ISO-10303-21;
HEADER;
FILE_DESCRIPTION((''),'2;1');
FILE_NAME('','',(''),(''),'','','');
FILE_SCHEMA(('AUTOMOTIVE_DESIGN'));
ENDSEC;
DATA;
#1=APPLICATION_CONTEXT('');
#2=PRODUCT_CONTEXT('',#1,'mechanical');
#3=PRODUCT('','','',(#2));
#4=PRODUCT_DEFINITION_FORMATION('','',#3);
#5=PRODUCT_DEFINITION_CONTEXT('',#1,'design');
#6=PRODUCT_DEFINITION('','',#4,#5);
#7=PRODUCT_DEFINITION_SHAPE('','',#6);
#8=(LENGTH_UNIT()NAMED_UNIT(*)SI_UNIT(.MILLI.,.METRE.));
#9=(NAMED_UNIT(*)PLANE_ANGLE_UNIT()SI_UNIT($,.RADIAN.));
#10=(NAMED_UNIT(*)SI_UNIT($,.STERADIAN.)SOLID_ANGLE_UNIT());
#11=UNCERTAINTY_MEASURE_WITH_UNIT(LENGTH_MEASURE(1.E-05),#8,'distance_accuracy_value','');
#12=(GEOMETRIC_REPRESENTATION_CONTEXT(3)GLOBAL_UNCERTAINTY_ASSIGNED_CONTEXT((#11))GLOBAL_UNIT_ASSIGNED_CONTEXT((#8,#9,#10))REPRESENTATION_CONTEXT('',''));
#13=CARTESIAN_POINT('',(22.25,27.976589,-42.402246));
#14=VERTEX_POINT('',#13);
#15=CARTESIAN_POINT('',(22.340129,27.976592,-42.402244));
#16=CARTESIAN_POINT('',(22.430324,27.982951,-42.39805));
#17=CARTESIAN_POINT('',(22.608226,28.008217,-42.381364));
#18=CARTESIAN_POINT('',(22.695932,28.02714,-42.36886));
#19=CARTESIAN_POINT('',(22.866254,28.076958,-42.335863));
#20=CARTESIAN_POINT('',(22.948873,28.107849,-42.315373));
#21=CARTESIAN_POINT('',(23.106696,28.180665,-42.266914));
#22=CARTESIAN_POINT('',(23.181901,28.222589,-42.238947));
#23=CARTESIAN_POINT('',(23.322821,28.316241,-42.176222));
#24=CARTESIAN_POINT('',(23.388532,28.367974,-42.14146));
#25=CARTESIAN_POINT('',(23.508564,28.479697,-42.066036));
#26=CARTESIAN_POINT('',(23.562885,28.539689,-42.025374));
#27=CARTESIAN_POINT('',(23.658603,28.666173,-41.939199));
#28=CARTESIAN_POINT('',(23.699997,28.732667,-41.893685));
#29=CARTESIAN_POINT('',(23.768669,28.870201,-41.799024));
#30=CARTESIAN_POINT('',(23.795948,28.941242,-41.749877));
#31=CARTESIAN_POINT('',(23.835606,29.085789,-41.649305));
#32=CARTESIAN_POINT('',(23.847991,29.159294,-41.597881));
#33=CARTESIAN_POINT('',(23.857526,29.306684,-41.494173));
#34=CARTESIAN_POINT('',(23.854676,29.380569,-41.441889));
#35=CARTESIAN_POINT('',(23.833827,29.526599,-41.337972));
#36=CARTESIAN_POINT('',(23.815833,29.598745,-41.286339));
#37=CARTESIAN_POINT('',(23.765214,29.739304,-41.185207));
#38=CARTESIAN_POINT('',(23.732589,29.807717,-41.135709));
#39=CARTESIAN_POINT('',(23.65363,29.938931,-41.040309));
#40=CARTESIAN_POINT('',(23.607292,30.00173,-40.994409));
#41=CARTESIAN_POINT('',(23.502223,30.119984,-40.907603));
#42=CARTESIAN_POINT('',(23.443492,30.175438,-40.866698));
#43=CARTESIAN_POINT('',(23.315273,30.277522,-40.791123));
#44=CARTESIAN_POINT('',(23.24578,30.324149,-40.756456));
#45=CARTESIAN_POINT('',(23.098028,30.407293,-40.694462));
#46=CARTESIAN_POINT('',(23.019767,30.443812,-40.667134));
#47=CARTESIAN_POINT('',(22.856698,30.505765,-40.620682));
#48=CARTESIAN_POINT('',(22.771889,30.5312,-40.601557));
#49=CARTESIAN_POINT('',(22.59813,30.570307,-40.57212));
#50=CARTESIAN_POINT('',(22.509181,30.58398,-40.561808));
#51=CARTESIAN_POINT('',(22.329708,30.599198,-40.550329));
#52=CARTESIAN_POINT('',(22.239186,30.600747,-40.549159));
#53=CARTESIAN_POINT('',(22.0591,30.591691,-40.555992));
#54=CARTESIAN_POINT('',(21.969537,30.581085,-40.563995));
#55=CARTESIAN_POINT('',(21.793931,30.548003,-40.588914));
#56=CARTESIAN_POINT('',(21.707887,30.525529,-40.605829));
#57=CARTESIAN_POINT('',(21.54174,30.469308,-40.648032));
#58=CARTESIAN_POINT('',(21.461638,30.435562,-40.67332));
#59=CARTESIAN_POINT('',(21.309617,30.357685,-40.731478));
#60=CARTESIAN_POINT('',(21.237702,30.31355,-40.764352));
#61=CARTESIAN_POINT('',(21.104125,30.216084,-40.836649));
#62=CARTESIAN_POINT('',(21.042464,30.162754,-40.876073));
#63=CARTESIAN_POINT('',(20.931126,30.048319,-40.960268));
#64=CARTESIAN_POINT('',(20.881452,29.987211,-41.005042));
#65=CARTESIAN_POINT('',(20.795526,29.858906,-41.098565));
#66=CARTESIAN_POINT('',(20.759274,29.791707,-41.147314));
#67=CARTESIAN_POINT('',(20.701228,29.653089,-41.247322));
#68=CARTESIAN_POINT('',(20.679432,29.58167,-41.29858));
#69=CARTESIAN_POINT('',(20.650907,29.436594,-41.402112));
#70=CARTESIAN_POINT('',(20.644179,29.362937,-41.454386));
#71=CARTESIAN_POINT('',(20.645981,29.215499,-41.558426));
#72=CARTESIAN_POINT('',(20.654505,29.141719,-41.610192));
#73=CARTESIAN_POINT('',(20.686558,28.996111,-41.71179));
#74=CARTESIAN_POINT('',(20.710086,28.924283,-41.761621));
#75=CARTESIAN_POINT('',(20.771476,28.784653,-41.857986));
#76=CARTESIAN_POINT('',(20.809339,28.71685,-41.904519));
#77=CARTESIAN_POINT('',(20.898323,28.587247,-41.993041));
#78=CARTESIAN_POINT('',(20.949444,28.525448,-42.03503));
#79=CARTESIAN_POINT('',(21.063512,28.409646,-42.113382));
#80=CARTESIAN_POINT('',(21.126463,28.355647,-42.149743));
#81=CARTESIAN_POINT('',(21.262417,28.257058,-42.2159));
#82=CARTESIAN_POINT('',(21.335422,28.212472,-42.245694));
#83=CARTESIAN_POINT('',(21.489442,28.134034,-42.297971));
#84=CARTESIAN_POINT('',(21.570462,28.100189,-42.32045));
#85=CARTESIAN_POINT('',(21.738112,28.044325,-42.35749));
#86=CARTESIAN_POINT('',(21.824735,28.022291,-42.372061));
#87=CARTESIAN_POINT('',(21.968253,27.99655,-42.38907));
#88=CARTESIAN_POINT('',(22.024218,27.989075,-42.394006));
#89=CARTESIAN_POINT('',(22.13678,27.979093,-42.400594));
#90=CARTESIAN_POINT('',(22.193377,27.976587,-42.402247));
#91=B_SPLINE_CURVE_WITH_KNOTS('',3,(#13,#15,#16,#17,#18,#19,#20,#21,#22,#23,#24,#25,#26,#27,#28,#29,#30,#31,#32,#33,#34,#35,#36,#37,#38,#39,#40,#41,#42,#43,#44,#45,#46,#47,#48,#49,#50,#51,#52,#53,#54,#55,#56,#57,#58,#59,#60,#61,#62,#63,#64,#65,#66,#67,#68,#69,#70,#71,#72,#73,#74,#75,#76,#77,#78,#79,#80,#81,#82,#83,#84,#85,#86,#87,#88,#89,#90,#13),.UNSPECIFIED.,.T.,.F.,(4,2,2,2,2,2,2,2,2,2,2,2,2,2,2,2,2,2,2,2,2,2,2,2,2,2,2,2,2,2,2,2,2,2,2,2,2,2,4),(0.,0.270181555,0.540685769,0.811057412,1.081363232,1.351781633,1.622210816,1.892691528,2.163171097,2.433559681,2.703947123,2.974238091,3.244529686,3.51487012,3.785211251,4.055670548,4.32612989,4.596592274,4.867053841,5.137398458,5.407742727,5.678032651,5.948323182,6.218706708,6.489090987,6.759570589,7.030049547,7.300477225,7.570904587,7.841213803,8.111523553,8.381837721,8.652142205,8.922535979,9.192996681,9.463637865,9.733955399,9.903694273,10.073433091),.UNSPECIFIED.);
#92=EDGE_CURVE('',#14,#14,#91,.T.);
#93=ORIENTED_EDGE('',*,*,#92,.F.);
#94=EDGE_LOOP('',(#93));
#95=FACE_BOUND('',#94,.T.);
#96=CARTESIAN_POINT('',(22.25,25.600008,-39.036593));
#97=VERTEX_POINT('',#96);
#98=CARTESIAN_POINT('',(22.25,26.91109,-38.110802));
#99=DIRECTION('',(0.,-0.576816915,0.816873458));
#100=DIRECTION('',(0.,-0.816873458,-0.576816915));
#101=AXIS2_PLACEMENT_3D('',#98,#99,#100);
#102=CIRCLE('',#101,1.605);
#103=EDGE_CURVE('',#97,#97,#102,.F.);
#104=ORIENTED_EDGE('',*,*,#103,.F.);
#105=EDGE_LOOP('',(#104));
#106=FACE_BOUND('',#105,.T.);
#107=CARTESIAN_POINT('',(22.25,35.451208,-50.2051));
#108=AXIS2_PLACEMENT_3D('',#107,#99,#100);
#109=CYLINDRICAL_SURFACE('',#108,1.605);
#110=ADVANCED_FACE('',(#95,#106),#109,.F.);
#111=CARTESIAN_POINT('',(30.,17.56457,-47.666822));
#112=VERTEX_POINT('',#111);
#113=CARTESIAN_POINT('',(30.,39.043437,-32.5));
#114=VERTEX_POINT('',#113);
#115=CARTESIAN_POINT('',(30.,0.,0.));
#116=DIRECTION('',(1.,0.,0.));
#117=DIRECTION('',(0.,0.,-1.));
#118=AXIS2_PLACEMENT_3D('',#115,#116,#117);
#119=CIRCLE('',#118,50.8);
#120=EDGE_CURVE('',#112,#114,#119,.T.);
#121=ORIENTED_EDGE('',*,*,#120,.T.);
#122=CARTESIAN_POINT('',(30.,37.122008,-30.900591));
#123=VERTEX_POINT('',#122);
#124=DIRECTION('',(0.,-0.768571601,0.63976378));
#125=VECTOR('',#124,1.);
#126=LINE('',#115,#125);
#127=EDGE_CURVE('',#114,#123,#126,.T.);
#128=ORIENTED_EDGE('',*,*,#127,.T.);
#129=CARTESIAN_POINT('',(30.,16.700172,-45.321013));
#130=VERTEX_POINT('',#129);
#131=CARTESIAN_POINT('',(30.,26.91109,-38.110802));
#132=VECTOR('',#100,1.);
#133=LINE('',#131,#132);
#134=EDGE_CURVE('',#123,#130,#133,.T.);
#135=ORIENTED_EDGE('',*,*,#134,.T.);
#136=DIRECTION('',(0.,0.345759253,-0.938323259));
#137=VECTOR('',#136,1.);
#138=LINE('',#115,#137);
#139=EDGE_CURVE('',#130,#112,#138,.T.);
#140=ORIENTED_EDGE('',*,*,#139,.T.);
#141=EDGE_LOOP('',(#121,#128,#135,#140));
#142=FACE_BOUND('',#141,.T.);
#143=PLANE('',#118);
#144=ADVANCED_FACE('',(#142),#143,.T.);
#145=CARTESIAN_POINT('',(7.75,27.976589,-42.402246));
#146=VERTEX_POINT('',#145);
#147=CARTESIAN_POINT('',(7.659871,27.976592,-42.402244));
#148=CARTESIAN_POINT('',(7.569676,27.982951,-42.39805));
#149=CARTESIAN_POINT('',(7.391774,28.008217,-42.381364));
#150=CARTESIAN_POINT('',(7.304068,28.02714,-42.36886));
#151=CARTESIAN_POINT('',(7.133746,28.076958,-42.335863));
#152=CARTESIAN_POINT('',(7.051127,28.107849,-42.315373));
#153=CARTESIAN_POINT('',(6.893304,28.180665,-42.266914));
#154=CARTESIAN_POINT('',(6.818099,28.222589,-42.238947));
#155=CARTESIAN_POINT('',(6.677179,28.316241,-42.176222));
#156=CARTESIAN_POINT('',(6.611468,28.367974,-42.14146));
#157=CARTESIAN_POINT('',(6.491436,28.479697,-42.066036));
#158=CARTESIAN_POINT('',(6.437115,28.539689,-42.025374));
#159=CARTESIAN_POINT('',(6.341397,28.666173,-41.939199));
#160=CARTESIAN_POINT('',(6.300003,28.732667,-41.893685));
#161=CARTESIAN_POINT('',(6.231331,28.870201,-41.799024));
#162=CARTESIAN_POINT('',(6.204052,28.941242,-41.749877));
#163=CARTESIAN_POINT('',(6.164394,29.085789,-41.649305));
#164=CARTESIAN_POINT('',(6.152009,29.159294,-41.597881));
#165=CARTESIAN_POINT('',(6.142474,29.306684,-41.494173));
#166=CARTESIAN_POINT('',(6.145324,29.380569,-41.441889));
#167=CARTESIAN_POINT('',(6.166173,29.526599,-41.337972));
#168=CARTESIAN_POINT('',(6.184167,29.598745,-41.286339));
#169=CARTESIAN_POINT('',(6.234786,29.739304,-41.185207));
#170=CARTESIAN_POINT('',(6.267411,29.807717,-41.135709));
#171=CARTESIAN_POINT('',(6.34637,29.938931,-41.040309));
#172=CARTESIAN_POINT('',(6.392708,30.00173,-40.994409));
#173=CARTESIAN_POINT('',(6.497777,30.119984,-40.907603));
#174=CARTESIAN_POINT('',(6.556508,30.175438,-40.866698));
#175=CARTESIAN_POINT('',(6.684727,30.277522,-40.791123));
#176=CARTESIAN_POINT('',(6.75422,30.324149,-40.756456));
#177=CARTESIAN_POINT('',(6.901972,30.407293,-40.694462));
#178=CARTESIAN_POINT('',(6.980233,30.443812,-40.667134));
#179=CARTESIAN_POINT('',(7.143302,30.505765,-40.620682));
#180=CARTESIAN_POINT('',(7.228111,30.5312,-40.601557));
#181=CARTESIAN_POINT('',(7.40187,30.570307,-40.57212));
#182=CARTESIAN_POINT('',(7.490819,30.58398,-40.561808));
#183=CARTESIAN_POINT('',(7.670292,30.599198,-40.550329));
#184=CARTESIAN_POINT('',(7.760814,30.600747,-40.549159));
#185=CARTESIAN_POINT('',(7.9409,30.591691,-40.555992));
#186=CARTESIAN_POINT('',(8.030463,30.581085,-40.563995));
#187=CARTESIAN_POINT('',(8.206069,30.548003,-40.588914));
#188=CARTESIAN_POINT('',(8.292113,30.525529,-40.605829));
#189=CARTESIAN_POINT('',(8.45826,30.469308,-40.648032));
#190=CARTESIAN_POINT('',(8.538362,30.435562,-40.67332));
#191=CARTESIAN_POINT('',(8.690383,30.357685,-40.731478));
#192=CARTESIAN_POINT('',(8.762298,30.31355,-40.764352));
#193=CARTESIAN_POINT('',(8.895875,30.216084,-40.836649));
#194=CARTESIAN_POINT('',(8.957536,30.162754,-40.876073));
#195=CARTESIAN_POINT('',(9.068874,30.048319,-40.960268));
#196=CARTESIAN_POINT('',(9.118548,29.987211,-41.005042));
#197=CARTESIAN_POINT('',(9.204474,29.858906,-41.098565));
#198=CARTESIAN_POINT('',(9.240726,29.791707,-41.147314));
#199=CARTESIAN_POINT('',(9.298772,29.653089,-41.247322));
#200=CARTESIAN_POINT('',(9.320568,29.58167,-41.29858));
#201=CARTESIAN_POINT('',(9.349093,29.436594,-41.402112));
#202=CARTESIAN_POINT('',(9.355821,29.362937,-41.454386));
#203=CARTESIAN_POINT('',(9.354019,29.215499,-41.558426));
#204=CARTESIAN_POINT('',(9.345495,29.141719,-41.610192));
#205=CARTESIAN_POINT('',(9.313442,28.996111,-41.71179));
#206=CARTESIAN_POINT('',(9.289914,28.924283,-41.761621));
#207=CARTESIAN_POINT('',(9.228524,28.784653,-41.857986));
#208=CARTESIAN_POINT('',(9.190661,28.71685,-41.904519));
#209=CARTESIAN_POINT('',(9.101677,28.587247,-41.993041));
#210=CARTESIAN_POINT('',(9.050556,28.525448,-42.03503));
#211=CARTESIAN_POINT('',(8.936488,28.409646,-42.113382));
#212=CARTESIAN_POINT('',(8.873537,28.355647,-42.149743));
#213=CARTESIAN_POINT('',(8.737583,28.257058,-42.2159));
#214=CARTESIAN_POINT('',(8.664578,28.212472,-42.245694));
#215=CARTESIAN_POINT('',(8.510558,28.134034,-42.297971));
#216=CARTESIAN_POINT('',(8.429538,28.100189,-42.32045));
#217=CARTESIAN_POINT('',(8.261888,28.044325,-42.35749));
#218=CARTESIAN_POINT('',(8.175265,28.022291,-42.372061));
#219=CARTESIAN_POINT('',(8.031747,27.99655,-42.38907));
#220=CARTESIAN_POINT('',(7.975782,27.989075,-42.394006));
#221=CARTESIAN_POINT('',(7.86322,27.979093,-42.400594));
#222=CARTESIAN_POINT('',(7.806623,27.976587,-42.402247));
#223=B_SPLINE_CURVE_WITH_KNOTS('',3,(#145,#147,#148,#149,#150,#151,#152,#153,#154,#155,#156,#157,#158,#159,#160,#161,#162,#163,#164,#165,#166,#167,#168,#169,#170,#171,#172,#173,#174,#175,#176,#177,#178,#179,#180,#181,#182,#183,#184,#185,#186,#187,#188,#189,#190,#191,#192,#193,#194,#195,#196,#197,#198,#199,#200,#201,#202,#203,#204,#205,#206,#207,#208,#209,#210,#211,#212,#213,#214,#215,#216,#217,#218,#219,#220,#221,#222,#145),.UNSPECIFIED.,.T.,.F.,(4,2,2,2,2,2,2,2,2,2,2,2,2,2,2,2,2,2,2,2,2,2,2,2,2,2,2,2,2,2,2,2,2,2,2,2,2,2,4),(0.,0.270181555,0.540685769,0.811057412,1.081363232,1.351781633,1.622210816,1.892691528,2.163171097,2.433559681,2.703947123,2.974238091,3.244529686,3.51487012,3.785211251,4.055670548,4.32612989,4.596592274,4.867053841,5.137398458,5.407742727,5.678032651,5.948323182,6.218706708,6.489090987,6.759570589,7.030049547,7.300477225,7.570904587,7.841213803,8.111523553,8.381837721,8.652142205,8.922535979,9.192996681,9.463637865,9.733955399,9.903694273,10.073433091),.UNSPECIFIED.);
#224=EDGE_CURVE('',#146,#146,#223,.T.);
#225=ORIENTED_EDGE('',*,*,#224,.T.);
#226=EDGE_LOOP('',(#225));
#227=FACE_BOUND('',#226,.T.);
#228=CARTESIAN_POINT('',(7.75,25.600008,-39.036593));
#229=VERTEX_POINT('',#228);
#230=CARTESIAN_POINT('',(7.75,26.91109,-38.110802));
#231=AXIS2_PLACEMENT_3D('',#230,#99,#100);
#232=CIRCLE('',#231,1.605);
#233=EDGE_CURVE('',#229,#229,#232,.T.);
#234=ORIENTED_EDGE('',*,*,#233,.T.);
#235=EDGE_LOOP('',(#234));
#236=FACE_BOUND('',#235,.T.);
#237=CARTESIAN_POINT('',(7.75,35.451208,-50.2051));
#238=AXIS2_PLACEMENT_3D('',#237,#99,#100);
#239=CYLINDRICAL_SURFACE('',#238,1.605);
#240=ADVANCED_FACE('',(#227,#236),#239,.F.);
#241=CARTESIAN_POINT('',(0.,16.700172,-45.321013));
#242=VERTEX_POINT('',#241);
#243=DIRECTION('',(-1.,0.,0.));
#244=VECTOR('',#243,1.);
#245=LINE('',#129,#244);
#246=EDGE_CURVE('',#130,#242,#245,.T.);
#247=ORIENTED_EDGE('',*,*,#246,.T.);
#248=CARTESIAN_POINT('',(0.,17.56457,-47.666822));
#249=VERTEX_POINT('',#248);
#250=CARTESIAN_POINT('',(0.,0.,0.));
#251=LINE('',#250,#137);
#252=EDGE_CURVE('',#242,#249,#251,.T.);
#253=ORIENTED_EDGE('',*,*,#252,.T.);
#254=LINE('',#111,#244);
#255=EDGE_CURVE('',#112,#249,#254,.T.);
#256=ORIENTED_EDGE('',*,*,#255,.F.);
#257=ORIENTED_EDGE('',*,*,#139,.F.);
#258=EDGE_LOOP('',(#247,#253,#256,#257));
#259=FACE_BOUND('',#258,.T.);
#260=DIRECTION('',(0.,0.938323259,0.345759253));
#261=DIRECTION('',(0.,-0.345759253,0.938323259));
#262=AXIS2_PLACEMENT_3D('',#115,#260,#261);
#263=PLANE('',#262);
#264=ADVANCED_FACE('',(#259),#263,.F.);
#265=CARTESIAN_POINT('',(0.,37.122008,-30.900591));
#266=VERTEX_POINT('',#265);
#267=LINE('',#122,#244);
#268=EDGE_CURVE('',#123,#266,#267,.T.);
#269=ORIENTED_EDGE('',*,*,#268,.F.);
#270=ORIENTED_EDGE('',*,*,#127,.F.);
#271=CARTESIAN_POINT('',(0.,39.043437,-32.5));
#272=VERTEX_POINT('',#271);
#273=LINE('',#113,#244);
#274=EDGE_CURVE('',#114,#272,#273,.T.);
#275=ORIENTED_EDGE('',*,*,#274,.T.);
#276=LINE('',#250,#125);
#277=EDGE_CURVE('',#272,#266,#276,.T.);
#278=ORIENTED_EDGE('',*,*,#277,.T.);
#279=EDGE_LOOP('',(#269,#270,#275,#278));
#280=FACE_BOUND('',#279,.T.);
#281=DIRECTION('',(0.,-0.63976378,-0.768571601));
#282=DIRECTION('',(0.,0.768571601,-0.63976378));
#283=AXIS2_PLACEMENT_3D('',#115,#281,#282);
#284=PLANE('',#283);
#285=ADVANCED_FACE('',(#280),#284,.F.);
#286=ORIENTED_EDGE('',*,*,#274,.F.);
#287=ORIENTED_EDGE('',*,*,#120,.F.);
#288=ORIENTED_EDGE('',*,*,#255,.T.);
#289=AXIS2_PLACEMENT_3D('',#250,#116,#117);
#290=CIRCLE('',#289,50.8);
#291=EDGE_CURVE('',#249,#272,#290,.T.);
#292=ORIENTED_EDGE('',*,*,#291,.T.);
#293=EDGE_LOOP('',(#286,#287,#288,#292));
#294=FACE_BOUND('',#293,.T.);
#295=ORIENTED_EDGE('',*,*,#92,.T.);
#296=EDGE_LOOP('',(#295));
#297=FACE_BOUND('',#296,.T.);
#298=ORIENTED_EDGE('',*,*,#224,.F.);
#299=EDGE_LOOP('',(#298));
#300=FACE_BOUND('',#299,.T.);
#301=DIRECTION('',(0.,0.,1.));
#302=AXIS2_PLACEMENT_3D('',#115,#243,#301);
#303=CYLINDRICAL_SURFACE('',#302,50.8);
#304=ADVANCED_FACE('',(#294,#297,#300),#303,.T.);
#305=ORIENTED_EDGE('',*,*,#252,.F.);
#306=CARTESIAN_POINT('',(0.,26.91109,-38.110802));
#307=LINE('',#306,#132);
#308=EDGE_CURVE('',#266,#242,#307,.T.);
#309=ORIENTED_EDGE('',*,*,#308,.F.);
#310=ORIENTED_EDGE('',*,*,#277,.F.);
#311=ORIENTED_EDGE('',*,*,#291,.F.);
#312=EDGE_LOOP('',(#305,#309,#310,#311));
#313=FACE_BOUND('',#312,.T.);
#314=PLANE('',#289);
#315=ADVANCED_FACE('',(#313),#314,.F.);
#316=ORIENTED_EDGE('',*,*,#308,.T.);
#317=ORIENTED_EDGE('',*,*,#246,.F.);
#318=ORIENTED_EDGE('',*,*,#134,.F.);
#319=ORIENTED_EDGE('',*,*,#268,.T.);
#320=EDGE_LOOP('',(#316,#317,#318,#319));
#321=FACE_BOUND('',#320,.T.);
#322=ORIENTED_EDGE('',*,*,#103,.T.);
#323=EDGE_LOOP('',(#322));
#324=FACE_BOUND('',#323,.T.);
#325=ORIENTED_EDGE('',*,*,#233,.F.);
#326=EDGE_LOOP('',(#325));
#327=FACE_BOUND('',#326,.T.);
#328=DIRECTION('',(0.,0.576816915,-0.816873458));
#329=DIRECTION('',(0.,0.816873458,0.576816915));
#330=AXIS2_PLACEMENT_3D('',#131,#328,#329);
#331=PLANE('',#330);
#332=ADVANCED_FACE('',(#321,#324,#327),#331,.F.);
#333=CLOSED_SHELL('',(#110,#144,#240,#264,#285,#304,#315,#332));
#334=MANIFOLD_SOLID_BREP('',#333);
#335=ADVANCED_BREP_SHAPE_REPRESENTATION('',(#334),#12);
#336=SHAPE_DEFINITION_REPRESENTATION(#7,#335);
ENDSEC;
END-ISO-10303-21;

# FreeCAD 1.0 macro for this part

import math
import FreeCAD as App
import Part
import Sketcher
from FreeCAD import Vector

doc = App.newDocument("Part")
body = doc.addObject("PartDesign::Body", "Body")

# Sketch on YZ plane
sketch1 = body.newObject("Sketcher::SketchObject", "Sketch")
sketch1.AttachmentSupport = (doc.getObject("YZ_Plane"), [""])
sketch1.MapMode = "FlatFace"
sketch1.addGeometry(Part.ArcOfCircle(Part.Circle(Vector(0, 0, 0), Vector(0, 0, 1), 50.8), math.radians(-70), math.radians(-40)), False)
sketch1.addGeometry(Part.LineSegment(Vector(39, -32.5, 0), Vector(37.1, -30.9, 0)), False)
sketch1.addGeometry(Part.LineSegment(Vector(37.1, -30.9, 0), Vector(16.7, -45.3, 0)), False)
sketch1.addGeometry(Part.LineSegment(Vector(16.7, -45.3, 0), Vector(17.6, -47.7, 0)), False)
sketch1.addConstraint(Sketcher.Constraint("Coincident", 0, 2, 1, 1))
sketch1.addConstraint(Sketcher.Constraint("Coincident", 1, 2, 2, 1))
sketch1.addConstraint(Sketcher.Constraint("Coincident", 2, 2, 3, 1))
sketch1.addConstraint(Sketcher.Constraint("Coincident", 3, 2, 0, 1))
sketch1.addConstraint(Sketcher.Constraint("Coincident", 0, 3, -1, 1))
sketch1.addConstraint(Sketcher.Constraint("Equal", 1, 3))
sketch1.addConstraint(Sketcher.Constraint("Radius", 0, 50.8))
sketch1.addConstraint(Sketcher.Constraint("Distance", 2, 25.0))
sketch1.addConstraint(Sketcher.Constraint("Distance", 1, 2.5))
sketch1.addConstraint(Sketcher.Constraint("DistanceY", 0, 2, -1, 1, 32.5))
sketch1.addConstraint(Sketcher.Constraint("DistanceX", 2, 2, 3, 2, 0.864398))
sketch1.addConstraint(Sketcher.Constraint("DistanceX", -1, 1, 1, 2, 37.122008))
pad1 = body.newObject("PartDesign::Pad", "Pad")
pad1.Profile = sketch1
pad1.Length = 30

# Sketch on an angled plane
sketch2 = body.newObject("Sketcher::SketchObject", "Sketch001")
sketch2.Placement = App.Placement(Vector(0, 26.91109, -38.110802), App.Rotation(Vector(1, 0, 0), Vector(0, 0.816873458, 0.576816915), Vector(0, -0.576816915, 0.816873458), "ZXY"))
sketch2.addGeometry(Part.Circle(Vector(7.8, 0, 0), Vector(0, 0, 1), 1.6), False)
sketch2.addConstraint(Sketcher.Constraint("PointOnObject", 0, 3, -1))
sketch2.addConstraint(Sketcher.Constraint("Diameter", 0, 3.21))
sketch2.addConstraint(Sketcher.Constraint("DistanceX", -1, 1, 0, 3, 7.75))
pocket1 = body.newObject("PartDesign::Pocket", "Pocket")
pocket1.Profile = sketch2
pocket1.Type = "UpToFirst"

# Sketch on an angled plane
sketch3 = body.newObject("Sketcher::SketchObject", "Sketch002")
sketch3.Placement = App.Placement(Vector(0, 26.91109, -38.110802), App.Rotation(Vector(1, 0, 0), Vector(0, 0.816873458, 0.576816915), Vector(0, -0.576816915, 0.816873458), "ZXY"))
sketch3.addGeometry(Part.Circle(Vector(22.2, 0, 0), Vector(0, 0, 1), 1.6), False)
sketch3.addConstraint(Sketcher.Constraint("PointOnObject", 0, 3, -1))
sketch3.addConstraint(Sketcher.Constraint("Diameter", 0, 3.21))
sketch3.addConstraint(Sketcher.Constraint("DistanceX", -1, 1, 0, 3, 22.25))
pocket2 = body.newObject("PartDesign::Pocket", "Pocket001")
pocket2.Profile = sketch3
pocket2.Type = "UpToFirst"

doc.recompute()
